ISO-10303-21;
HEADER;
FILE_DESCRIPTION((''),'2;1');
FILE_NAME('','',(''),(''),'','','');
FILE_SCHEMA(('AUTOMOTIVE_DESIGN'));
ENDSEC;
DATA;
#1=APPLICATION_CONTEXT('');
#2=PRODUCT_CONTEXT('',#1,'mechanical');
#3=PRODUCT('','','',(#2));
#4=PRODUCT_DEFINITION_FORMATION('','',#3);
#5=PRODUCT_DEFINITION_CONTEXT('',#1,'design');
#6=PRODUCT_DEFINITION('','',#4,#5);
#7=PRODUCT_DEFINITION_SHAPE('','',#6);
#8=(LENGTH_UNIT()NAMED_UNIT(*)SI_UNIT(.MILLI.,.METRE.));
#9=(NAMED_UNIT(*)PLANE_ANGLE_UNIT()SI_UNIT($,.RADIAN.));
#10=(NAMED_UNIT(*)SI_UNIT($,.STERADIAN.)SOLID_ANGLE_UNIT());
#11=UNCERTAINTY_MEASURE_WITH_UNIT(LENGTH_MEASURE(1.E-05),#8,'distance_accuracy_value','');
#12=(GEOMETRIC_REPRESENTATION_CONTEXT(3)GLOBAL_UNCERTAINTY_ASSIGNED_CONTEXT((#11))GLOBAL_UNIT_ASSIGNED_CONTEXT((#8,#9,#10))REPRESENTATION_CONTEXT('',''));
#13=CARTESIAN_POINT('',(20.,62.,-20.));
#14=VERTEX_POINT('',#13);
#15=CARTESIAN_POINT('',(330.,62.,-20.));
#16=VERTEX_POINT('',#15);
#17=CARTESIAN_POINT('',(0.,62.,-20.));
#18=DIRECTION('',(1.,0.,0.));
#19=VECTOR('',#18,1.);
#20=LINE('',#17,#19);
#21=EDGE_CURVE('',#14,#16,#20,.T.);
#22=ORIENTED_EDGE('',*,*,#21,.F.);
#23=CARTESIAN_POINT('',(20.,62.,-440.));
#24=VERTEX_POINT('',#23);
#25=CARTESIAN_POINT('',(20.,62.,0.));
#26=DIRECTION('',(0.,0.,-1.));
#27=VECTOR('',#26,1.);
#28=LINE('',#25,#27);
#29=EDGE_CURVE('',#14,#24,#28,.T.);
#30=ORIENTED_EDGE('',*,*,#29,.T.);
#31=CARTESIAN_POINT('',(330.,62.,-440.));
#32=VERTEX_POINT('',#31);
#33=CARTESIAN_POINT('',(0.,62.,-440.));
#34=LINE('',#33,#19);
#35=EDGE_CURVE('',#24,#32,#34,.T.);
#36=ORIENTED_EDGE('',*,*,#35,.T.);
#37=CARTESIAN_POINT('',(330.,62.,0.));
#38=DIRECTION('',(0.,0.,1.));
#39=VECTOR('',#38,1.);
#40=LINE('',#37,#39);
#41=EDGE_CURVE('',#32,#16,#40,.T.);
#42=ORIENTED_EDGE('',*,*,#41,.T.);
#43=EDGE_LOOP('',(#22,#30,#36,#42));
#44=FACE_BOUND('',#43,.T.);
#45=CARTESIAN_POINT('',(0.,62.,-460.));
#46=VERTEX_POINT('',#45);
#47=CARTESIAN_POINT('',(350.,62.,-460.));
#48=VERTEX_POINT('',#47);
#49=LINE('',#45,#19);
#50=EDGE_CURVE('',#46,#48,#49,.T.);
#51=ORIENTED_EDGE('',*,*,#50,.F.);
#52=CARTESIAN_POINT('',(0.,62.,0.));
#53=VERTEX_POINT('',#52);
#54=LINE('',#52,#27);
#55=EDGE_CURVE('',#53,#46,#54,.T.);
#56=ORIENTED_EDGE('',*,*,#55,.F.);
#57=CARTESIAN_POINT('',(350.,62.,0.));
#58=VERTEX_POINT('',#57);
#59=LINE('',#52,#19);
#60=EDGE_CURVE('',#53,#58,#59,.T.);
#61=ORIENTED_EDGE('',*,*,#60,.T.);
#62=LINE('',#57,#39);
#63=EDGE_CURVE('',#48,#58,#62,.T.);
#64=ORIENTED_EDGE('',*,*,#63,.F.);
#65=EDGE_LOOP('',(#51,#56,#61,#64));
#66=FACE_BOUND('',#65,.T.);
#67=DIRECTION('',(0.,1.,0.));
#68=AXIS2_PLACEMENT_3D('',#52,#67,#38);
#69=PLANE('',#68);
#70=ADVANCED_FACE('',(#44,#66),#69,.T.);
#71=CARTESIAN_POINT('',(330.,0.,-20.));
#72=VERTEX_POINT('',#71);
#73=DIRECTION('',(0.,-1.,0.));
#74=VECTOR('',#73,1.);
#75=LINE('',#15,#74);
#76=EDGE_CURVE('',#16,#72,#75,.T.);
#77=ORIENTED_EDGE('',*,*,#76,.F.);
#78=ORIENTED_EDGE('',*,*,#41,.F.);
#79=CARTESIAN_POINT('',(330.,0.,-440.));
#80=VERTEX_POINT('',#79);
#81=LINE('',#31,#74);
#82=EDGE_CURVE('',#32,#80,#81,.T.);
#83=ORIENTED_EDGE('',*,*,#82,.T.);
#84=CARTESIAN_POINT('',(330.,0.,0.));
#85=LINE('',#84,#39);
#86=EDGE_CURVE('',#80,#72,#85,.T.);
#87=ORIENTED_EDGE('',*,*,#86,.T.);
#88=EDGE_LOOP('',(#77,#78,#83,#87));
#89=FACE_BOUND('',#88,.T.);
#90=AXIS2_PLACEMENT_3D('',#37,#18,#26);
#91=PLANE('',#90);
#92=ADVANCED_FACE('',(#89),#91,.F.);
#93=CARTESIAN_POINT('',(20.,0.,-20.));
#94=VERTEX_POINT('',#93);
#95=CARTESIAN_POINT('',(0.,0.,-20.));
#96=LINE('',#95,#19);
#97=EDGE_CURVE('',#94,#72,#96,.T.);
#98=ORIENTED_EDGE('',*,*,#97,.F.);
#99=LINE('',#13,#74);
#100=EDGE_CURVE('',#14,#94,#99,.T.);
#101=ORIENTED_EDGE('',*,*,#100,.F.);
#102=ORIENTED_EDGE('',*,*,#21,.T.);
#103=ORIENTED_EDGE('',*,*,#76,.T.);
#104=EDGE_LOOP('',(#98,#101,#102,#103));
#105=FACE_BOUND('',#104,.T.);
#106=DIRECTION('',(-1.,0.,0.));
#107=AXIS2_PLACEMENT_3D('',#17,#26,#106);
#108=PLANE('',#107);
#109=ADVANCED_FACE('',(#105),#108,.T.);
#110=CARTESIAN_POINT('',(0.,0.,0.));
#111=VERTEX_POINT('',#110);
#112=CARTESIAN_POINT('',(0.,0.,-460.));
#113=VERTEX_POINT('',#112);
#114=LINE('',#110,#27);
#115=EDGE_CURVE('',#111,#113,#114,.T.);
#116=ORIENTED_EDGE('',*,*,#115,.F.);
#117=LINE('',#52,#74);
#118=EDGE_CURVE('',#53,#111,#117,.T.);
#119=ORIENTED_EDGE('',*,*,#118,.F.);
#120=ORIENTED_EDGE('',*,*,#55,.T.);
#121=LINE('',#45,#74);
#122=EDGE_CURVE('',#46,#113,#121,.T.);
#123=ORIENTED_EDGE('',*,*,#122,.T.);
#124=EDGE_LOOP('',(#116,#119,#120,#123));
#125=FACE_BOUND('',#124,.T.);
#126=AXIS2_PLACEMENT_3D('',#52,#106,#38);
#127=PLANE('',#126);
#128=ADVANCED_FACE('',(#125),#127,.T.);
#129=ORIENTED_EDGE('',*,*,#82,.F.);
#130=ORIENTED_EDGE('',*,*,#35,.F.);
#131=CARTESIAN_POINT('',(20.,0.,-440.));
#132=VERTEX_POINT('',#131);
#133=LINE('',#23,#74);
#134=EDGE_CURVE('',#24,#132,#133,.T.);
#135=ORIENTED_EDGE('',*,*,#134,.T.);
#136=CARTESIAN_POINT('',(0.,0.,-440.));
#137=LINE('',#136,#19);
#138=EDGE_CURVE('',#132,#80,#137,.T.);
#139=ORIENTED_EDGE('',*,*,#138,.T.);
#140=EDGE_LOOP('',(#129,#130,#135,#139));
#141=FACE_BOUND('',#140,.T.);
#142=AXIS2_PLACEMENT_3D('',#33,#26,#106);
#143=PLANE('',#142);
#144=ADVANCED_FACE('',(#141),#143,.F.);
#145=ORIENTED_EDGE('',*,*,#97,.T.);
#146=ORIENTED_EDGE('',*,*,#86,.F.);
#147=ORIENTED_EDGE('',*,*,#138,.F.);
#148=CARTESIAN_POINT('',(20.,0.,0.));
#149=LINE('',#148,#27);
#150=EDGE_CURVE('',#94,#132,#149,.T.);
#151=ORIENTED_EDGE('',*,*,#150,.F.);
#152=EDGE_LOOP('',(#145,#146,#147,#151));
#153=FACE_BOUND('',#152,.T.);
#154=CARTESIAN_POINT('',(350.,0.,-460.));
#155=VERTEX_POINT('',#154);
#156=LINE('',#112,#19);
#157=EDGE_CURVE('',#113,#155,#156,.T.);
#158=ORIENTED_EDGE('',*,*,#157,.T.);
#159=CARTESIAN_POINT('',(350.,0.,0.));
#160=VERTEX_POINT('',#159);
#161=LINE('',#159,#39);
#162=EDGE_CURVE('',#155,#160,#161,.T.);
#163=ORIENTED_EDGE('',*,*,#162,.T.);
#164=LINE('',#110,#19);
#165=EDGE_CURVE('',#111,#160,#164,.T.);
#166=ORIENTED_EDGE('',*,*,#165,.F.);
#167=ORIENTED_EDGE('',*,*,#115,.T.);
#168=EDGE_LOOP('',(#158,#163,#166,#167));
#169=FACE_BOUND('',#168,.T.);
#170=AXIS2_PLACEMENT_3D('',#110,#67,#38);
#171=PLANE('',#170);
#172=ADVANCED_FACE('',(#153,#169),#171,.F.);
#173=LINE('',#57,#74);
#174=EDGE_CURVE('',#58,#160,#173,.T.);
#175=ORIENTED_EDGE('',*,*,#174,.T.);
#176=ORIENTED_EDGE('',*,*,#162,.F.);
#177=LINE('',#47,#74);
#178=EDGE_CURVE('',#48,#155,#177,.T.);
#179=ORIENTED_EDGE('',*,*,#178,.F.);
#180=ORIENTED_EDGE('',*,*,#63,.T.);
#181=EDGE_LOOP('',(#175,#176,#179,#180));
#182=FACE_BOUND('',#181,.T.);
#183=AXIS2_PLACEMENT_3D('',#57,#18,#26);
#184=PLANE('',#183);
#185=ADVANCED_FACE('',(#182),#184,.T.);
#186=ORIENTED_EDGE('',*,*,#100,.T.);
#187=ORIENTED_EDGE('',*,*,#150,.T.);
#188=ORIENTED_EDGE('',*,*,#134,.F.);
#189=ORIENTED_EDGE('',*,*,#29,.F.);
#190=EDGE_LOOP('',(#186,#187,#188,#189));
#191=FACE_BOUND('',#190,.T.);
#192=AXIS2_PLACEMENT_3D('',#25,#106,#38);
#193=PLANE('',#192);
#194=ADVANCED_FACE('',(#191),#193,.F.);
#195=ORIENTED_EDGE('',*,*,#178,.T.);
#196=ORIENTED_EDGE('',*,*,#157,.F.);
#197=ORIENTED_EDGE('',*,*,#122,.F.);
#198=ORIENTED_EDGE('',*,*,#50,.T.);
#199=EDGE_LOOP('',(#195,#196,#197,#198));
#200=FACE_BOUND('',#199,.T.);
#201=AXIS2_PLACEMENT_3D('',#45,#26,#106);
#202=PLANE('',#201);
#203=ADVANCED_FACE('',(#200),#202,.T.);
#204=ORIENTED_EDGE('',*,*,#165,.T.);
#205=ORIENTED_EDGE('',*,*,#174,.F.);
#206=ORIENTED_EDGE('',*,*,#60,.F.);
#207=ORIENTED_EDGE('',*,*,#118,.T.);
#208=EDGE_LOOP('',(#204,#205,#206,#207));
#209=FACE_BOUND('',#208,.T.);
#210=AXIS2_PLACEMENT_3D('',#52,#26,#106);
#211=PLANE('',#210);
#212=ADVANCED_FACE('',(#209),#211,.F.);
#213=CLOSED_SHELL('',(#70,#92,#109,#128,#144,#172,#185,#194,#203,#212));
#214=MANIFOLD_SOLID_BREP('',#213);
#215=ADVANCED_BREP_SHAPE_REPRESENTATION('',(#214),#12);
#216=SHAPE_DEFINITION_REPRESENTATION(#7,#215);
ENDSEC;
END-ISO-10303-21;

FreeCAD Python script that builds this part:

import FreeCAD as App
import Part
import Sketcher
Q = App.Units.Quantity

doc = App.newDocument("Part")
body = doc.addObject("PartDesign::Body", "Body")

sketch1 = body.newObject("Sketcher::SketchObject", "Sketch")
sketch1.AttachmentSupport = (doc.getObject("XZ_Plane"), [""])
sketch1.MapMode = "FlatFace"
sketch1.addGeometry([
    Part.LineSegment(App.Vector(0, -460, 0), App.Vector(0, 0, 0)),
    Part.LineSegment(App.Vector(0, 0, 0), App.Vector(350, 0, 0)),
    Part.LineSegment(App.Vector(350, 0, 0), App.Vector(350, -460, 0)),
    Part.LineSegment(App.Vector(350, -460, 0), App.Vector(0, -460, 0)),
    Part.LineSegment(App.Vector(330, -20, 0), App.Vector(20, -20, 0)),
    Part.LineSegment(App.Vector(20, -20, 0), App.Vector(20, -440, 0)),
    Part.LineSegment(App.Vector(20, -440, 0), App.Vector(330, -440, 0)),
    Part.LineSegment(App.Vector(330, -440, 0), App.Vector(330, -20, 0)),
], False)
sketch1.addConstraint([
    Sketcher.Constraint("Coincident", 0, 2, 1, 1),
    Sketcher.Constraint("Coincident", 1, 2, 2, 1),
    Sketcher.Constraint("Coincident", 2, 2, 3, 1),
    Sketcher.Constraint("Coincident", 3, 2, 0, 1),
    Sketcher.Constraint("Coincident", 4, 2, 5, 1),
    Sketcher.Constraint("Coincident", 5, 2, 6, 1),
    Sketcher.Constraint("Coincident", 6, 2, 7, 1),
    Sketcher.Constraint("Coincident", 7, 2, 4, 1),
    Sketcher.Constraint("Vertical", 0),
    Sketcher.Constraint("Horizontal", 1),
    Sketcher.Constraint("Vertical", 2),
    Sketcher.Constraint("Horizontal", 3),
    Sketcher.Constraint("Horizontal", 4),
    Sketcher.Constraint("Vertical", 5),
    Sketcher.Constraint("Horizontal", 6),
    Sketcher.Constraint("Vertical", 7),
    Sketcher.Constraint("Coincident", 0, 2, -1, 1),
    Sketcher.Constraint("DistanceX", 1, 1, 1, 2, Q("350 mm")),
    Sketcher.Constraint("DistanceX", 4, 2, 4, 1, Q("310 mm")),
    Sketcher.Constraint("DistanceY", 0, 1, 0, 2, Q("460 mm")),
    Sketcher.Constraint("DistanceY", 5, 2, 5, 1, Q("420 mm")),
    Sketcher.Constraint("DistanceX", -1, 1, 4, 2, Q("20 mm")),
    Sketcher.Constraint("DistanceY", 4, 2, -1, 1, Q("20 mm")),
])
pad1 = body.newObject("PartDesign::Pad", "Pad")
pad1.Profile = sketch1
pad1.Length = 62
pad1.Reversed = True

doc.recompute()
